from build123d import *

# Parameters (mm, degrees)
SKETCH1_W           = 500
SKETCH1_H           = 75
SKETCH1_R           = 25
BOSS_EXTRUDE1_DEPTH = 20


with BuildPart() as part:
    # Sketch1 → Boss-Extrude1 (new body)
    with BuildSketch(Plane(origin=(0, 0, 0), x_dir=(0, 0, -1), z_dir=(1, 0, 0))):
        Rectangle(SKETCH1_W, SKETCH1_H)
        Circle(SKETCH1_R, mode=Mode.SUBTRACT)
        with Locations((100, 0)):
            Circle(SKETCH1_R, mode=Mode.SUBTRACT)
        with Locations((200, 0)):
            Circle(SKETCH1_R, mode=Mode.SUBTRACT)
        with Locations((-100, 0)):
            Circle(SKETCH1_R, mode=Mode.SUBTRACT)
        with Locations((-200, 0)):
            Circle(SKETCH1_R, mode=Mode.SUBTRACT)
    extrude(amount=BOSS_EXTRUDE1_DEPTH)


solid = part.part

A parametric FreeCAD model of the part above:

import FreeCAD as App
import Part
import Sketcher
from FreeCAD import Vector
Q = App.Units.Quantity

doc = App.newDocument("Part")
body = doc.addObject("PartDesign::Body", "Body")

# Sketch on YZ plane
sketch1 = body.newObject("Sketcher::SketchObject", "Sketch")
sketch1.AttachmentSupport = (doc.getObject("YZ_Plane"), [""])
sketch1.MapMode = "FlatFace"
sketch1.addGeometry([
    Part.LineSegment(Vector(38, 250, 0), Vector(-38, 250, 0)),  # 0
    Part.LineSegment(Vector(-38, 250, 0), Vector(-38, -250, 0)),  # 1
    Part.LineSegment(Vector(-38, -250, 0), Vector(38, -250, 0)),  # 2
    Part.LineSegment(Vector(38, -250, 0), Vector(38, 250, 0)),  # 3
    Part.Circle(Vector(0, 200, 0), Vector(0, 0, 1), 25),  # 4
    Part.Circle(Vector(0, 100, 0), Vector(0, 0, 1), 25),  # 5
    Part.Circle(Vector(0, 0, 0), Vector(0, 0, 1), 25),  # 6
    Part.Circle(Vector(0, -100, 0), Vector(0, 0, 1), 25),  # 7
    Part.Circle(Vector(0, -200, 0), Vector(0, 0, 1), 25),  # 8
], False)
sketch1.addConstraint([
    Sketcher.Constraint("Coincident", 0, 2, 1, 1),
    Sketcher.Constraint("Coincident", 1, 2, 2, 1),
    Sketcher.Constraint("Coincident", 2, 2, 3, 1),
    Sketcher.Constraint("Coincident", 3, 2, 0, 1),
    Sketcher.Constraint("Horizontal", 0),
    Sketcher.Constraint("Vertical", 1),
    Sketcher.Constraint("Horizontal", 2),
    Sketcher.Constraint("Vertical", 3),
    Sketcher.Constraint("Coincident", 6, 3, -1, 1),
    Sketcher.Constraint("Equal", 4, 5),
    Sketcher.Constraint("Equal", 5, 6),
    Sketcher.Constraint("Equal", 6, 7),
    Sketcher.Constraint("Equal", 7, 8),
    Sketcher.Constraint("Symmetric", 5, 3, 7, 3, -1, 1),
    Sketcher.Constraint("Symmetric", 4, 3, 8, 3, -1, 1),
    Sketcher.Constraint("Symmetric", 0, 2, 2, 2, -1, 1),
    Sketcher.Constraint("PointOnObject", 4, 3, -2),
    Sketcher.Constraint("PointOnObject", 5, 3, -2),
    Sketcher.Constraint("Diameter", 4, Q("50 mm")),
    Sketcher.Constraint("DistanceX", 0, 2, 0, 1, Q("75 mm")),
    Sketcher.Constraint("DistanceY", 1, 2, 1, 1, Q("500 mm")),
    Sketcher.Constraint("DistanceY", -1, 1, 4, 3, Q("200 mm")),
    Sketcher.Constraint("DistanceY", -1, 1, 5, 3, Q("100 mm")),
])
pad1 = body.newObject("PartDesign::Pad", "Pad")
pad1.Profile = sketch1
pad1.Length = 20

doc.recompute()
